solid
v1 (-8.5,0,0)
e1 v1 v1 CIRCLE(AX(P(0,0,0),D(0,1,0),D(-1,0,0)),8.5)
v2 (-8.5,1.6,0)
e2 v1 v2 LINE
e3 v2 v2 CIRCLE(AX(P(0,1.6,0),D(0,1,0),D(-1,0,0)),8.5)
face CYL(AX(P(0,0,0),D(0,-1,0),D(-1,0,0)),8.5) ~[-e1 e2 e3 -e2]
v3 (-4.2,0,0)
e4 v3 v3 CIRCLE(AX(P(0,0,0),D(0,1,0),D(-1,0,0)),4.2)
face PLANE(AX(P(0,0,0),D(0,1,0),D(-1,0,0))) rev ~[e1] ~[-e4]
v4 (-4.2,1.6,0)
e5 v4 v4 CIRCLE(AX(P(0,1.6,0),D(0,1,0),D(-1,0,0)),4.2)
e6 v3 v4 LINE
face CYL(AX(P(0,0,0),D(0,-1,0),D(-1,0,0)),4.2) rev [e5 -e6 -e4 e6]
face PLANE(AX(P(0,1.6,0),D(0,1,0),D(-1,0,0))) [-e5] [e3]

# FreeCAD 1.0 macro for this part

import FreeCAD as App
import Part
import Sketcher

V = App.Vector
Q = App.Units.Quantity

doc = App.newDocument("Part")
params = doc.addObject("Spreadsheet::Sheet", "Params")
for row, (alias, value) in enumerate([
    ("pad1_length", "0.0629921 in"),
], start=1):
    params.set(f"A{row}", alias)
    params.set(f"B{row}", "=" + value)
    params.setAlias(f"B{row}", alias)

body = doc.addObject("PartDesign::Body", "Body")

sketch1 = body.newObject("Sketcher::SketchObject", "Sketch")
sketch1.AttachmentSupport = (doc.getObject("XZ_Plane"), [""])
sketch1.MapMode = "FlatFace"
sketch1.addGeometry([
    Part.Circle(V(0, 0, 0), V(0, 0, 1), 8.5),
    Part.Circle(V(0, 0, 0), V(0, 0, 1), 4.2),
], False)
sketch1.addConstraint([
    Sketcher.Constraint("Coincident", 0, 3, -1, 1),
    Sketcher.Constraint("Coincident", 1, 3, -1, 1),
    Sketcher.Constraint("Diameter", 0, Q("0.6693 in")),
    Sketcher.Constraint("Diameter", 1, Q("0.3307 in")),
])
pad1 = body.newObject("PartDesign::Pad", "Pad")
pad1.Profile = sketch1
pad1.setExpression("Length", "Params.pad1_length")
pad1.Reversed = True

doc.recompute()
